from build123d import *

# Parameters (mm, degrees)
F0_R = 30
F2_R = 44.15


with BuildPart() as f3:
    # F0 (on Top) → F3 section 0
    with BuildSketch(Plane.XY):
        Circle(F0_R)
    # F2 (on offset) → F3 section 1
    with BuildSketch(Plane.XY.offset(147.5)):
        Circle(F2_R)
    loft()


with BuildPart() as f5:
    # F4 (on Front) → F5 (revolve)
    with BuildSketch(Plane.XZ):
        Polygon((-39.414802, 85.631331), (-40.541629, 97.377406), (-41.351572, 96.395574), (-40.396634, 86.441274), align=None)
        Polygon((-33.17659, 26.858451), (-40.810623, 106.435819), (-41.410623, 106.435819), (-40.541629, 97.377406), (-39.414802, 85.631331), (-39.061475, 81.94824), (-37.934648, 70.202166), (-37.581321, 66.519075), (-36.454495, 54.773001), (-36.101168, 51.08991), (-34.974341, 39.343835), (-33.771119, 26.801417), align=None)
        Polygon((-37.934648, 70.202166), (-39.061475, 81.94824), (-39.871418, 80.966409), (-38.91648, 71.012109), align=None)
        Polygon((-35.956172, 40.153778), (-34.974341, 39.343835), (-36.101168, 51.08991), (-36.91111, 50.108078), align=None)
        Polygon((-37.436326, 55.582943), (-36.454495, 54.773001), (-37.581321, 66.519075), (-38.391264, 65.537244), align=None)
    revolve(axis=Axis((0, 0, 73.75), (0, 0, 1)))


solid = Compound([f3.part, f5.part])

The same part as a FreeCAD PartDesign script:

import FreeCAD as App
import Part
import Sketcher

V = App.Vector


def add_polygon(sketch, points):
    """Adds a closed chain of lines whose ends are joined by coincident constraints."""
    first, n = sketch.GeometryCount, len(points)
    for a, b in zip(points, points[1:] + points[:1]):
        sketch.addGeometry(Part.LineSegment(App.Vector(*a, 0), App.Vector(*b, 0)), False)
    for i in range(n):
        sketch.addConstraint(Sketcher.Constraint("Coincident", first + i, 2, first + (i + 1) % n, 1))

doc = App.newDocument("Part")
body = doc.addObject("PartDesign::Body", "Body")

# Sketch on XY plane
sketch1 = body.newObject("Sketcher::SketchObject", "Sketch")
sketch1.AttachmentSupport = (doc.getObject("XY_Plane"), [""])
sketch1.MapMode = "FlatFace"
sketch1.addGeometry(Part.Circle(V(0, 0, 0), V(0, 0, 1), 30), False)
sketch1.addConstraint([
    Sketcher.Constraint("Coincident", 0, 3, -1, 1),
    Sketcher.Constraint("Diameter", 0, 60.0),
])

# Sketch on XY plane
sketch2 = body.newObject("Sketcher::SketchObject", "Sketch001")
sketch2.AttachmentSupport = (doc.getObject("XY_Plane"), [""])
sketch2.MapMode = "FlatFace"
sketch2.AttachmentOffset = App.Placement(V(0, 0, 147.5), App.Rotation())
sketch2.addGeometry(Part.Circle(V(0, 0, 0), V(0, 0, 1), 44), False)
sketch2.addConstraint([
    Sketcher.Constraint("Coincident", 0, 3, -1, 1),
    Sketcher.Constraint("Diameter", 0, 88.3),
])

additiveloft = body.newObject("PartDesign::AdditiveLoft", "AdditiveLoft")
additiveloft.Profile = sketch1
additiveloft.Sections = [sketch2]
body2 = doc.addObject("PartDesign::Body", "Body001")

# Sketch on XZ plane
sketch3 = body2.newObject("Sketcher::SketchObject", "Sketch002")
sketch3.AttachmentSupport = (doc.getObject("XZ_Plane001"), [""])
sketch3.MapMode = "FlatFace"
add_polygon(sketch3, [(-40.5, 97.4), (-41.4, 96.4), (-40.4, 86.4), (-39.4, 85.6), (-39.1, 81.9), (-39.9, 81), (-38.9, 71), (-37.9, 70.2), (-37.6, 66.5), (-38.4, 65.5), (-37.4, 55.6), (-36.5, 54.8), (-36.1, 51.1), (-36.9, 50.1), (-36, 40.2), (-35, 39.3), (-33.8, 26.8), (-33.2, 26.9), (-40.8, 106.4), (-41.4, 106.4)])  # lines 0-19
sketch3.addConstraint([
    Sketcher.Constraint("Horizontal", 18),
    Sketcher.Constraint("Perpendicular", 0, 2),
    Sketcher.Constraint("Parallel", 1, 3),
    Sketcher.Constraint("Perpendicular", 2, 4),
    Sketcher.Constraint("Parallel", 3, 5),
    Sketcher.Constraint("Perpendicular", 4, 6),
    Sketcher.Constraint("Parallel", 5, 7),
    Sketcher.Constraint("Perpendicular", 6, 8),
    Sketcher.Constraint("Parallel", 7, 9),
    Sketcher.Constraint("Perpendicular", 8, 10),
    Sketcher.Constraint("Parallel", 9, 11),
    Sketcher.Constraint("Perpendicular", 10, 12),
    Sketcher.Constraint("Parallel", 11, 13),
    Sketcher.Constraint("Perpendicular", 12, 14),
    Sketcher.Constraint("Parallel", 13, 15),
    Sketcher.Constraint("Perpendicular", 15, 16),
    Sketcher.Constraint("Perpendicular", 16, 17),
    Sketcher.Constraint("Parallel", 17, 19),
    Sketcher.Constraint("Equal", 0, 2),
    Sketcher.Constraint("Equal", 2, 4),
    Sketcher.Constraint("Equal", 1, 5),
    Sketcher.Constraint("Equal", 4, 6),
    Sketcher.Constraint("Equal", 3, 7),
    Sketcher.Constraint("Equal", 6, 8),
    Sketcher.Constraint("Equal", 5, 9),
    Sketcher.Constraint("Equal", 8, 10),
    Sketcher.Constraint("Equal", 7, 11),
    Sketcher.Constraint("Equal", 10, 12),
    Sketcher.Constraint("Equal", 9, 13),
    Sketcher.Constraint("Equal", 12, 14),
    Sketcher.Constraint("Distance", 1, 10.0),
    Sketcher.Constraint("DistanceX", 18, 2, 18, 1, 0.6),
    Sketcher.Constraint("Distance", 3, 3.7),
    Sketcher.Constraint("Distance", 15, 12.6),
    Sketcher.Constraint("Distance", 19, 9.1),
    Sketcher.Constraint("DistanceY", -1, 1, 10, 2, 54.773001),
    Sketcher.Constraint("DistanceY", 1, 2, 0, 2, 9.9543),
    Sketcher.Constraint("Distance", 10, 1.272791),
    Sketcher.Constraint("Distance", 16, 0.597258),
    Sketcher.Constraint("DistanceX", 0, 2, -1, 1, 41.351572),
])
revolution = body2.newObject("PartDesign::Revolution", "Revolution")
revolution.Profile = sketch3
revolution.ReferenceAxis = (sketch3, ["V_Axis"])
revolution.Angle = 360

doc.recompute()
